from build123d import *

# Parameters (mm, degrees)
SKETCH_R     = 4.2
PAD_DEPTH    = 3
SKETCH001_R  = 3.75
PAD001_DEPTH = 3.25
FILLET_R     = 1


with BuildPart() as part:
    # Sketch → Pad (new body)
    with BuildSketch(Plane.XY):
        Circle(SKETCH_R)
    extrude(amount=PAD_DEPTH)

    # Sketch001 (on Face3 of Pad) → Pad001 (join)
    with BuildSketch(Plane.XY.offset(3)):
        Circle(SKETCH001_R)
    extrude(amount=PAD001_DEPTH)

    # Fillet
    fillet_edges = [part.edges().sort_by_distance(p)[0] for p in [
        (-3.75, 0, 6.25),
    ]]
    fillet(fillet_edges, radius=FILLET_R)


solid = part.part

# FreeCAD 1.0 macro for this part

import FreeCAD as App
import Part
import Sketcher
from FreeCAD import Vector
Q = App.Units.Quantity


def edges_at(feature, points):
    """Names of the edges that pass closest to the given points."""
    edges = feature.Shape.Edges
    near = lambda p: min(range(len(edges)), key=lambda i: edges[i].distToShape(Part.Vertex(*p))[0])
    return sorted({f"Edge{near(p) + 1}" for p in points})

doc = App.newDocument("Part")
body = doc.addObject("PartDesign::Body", "Body")

sketch1 = doc.addObject("Sketcher::SketchObject", "Sketch")
body.addObject(sketch1)
sketch1.AttachmentSupport = (doc.XY_Plane, [""])
sketch1.MapMode = "FlatFace"
sketch1.addGeometry(Part.Circle(Vector(0, 0, 0), Vector(0, 0, 1), 4.2), False)
sketch1.addConstraint([
    Sketcher.Constraint("Coincident", 0, 3, -1, 1),
    Sketcher.Constraint("Diameter", 0, Q("8.4 mm")),
])
pad1 = doc.addObject("PartDesign::Pad", "Pad")
body.addObject(pad1)
pad1.Profile = sketch1
pad1.Length = 3

sketch2 = doc.addObject("Sketcher::SketchObject", "Sketch001")
body.addObject(sketch2)
sketch2.AttachmentSupport = (doc.XY_Plane, [""])
sketch2.MapMode = "FlatFace"
sketch2.AttachmentOffset = App.Placement(Vector(0, 0, 3), App.Rotation())
sketch2.addGeometry(Part.Circle(Vector(0, 0, 0), Vector(0, 0, 1), 3.75), False)
sketch2.addConstraint([
    Sketcher.Constraint("Coincident", 0, 3, -1, 1),
    Sketcher.Constraint("Diameter", 0, Q("7.5 mm")),
])
pad2 = doc.addObject("PartDesign::Pad", "Pad001")
body.addObject(pad2)
pad2.Profile = sketch2
pad2.Length = 3.25
doc.recompute()

fillet = doc.addObject("PartDesign::Fillet", "Fillet")
body.addObject(fillet)
fillet.Base = (pad2, edges_at(pad2, [(-3.75, 0, 6.25)]))
fillet.Radius = 1

doc.recompute()
